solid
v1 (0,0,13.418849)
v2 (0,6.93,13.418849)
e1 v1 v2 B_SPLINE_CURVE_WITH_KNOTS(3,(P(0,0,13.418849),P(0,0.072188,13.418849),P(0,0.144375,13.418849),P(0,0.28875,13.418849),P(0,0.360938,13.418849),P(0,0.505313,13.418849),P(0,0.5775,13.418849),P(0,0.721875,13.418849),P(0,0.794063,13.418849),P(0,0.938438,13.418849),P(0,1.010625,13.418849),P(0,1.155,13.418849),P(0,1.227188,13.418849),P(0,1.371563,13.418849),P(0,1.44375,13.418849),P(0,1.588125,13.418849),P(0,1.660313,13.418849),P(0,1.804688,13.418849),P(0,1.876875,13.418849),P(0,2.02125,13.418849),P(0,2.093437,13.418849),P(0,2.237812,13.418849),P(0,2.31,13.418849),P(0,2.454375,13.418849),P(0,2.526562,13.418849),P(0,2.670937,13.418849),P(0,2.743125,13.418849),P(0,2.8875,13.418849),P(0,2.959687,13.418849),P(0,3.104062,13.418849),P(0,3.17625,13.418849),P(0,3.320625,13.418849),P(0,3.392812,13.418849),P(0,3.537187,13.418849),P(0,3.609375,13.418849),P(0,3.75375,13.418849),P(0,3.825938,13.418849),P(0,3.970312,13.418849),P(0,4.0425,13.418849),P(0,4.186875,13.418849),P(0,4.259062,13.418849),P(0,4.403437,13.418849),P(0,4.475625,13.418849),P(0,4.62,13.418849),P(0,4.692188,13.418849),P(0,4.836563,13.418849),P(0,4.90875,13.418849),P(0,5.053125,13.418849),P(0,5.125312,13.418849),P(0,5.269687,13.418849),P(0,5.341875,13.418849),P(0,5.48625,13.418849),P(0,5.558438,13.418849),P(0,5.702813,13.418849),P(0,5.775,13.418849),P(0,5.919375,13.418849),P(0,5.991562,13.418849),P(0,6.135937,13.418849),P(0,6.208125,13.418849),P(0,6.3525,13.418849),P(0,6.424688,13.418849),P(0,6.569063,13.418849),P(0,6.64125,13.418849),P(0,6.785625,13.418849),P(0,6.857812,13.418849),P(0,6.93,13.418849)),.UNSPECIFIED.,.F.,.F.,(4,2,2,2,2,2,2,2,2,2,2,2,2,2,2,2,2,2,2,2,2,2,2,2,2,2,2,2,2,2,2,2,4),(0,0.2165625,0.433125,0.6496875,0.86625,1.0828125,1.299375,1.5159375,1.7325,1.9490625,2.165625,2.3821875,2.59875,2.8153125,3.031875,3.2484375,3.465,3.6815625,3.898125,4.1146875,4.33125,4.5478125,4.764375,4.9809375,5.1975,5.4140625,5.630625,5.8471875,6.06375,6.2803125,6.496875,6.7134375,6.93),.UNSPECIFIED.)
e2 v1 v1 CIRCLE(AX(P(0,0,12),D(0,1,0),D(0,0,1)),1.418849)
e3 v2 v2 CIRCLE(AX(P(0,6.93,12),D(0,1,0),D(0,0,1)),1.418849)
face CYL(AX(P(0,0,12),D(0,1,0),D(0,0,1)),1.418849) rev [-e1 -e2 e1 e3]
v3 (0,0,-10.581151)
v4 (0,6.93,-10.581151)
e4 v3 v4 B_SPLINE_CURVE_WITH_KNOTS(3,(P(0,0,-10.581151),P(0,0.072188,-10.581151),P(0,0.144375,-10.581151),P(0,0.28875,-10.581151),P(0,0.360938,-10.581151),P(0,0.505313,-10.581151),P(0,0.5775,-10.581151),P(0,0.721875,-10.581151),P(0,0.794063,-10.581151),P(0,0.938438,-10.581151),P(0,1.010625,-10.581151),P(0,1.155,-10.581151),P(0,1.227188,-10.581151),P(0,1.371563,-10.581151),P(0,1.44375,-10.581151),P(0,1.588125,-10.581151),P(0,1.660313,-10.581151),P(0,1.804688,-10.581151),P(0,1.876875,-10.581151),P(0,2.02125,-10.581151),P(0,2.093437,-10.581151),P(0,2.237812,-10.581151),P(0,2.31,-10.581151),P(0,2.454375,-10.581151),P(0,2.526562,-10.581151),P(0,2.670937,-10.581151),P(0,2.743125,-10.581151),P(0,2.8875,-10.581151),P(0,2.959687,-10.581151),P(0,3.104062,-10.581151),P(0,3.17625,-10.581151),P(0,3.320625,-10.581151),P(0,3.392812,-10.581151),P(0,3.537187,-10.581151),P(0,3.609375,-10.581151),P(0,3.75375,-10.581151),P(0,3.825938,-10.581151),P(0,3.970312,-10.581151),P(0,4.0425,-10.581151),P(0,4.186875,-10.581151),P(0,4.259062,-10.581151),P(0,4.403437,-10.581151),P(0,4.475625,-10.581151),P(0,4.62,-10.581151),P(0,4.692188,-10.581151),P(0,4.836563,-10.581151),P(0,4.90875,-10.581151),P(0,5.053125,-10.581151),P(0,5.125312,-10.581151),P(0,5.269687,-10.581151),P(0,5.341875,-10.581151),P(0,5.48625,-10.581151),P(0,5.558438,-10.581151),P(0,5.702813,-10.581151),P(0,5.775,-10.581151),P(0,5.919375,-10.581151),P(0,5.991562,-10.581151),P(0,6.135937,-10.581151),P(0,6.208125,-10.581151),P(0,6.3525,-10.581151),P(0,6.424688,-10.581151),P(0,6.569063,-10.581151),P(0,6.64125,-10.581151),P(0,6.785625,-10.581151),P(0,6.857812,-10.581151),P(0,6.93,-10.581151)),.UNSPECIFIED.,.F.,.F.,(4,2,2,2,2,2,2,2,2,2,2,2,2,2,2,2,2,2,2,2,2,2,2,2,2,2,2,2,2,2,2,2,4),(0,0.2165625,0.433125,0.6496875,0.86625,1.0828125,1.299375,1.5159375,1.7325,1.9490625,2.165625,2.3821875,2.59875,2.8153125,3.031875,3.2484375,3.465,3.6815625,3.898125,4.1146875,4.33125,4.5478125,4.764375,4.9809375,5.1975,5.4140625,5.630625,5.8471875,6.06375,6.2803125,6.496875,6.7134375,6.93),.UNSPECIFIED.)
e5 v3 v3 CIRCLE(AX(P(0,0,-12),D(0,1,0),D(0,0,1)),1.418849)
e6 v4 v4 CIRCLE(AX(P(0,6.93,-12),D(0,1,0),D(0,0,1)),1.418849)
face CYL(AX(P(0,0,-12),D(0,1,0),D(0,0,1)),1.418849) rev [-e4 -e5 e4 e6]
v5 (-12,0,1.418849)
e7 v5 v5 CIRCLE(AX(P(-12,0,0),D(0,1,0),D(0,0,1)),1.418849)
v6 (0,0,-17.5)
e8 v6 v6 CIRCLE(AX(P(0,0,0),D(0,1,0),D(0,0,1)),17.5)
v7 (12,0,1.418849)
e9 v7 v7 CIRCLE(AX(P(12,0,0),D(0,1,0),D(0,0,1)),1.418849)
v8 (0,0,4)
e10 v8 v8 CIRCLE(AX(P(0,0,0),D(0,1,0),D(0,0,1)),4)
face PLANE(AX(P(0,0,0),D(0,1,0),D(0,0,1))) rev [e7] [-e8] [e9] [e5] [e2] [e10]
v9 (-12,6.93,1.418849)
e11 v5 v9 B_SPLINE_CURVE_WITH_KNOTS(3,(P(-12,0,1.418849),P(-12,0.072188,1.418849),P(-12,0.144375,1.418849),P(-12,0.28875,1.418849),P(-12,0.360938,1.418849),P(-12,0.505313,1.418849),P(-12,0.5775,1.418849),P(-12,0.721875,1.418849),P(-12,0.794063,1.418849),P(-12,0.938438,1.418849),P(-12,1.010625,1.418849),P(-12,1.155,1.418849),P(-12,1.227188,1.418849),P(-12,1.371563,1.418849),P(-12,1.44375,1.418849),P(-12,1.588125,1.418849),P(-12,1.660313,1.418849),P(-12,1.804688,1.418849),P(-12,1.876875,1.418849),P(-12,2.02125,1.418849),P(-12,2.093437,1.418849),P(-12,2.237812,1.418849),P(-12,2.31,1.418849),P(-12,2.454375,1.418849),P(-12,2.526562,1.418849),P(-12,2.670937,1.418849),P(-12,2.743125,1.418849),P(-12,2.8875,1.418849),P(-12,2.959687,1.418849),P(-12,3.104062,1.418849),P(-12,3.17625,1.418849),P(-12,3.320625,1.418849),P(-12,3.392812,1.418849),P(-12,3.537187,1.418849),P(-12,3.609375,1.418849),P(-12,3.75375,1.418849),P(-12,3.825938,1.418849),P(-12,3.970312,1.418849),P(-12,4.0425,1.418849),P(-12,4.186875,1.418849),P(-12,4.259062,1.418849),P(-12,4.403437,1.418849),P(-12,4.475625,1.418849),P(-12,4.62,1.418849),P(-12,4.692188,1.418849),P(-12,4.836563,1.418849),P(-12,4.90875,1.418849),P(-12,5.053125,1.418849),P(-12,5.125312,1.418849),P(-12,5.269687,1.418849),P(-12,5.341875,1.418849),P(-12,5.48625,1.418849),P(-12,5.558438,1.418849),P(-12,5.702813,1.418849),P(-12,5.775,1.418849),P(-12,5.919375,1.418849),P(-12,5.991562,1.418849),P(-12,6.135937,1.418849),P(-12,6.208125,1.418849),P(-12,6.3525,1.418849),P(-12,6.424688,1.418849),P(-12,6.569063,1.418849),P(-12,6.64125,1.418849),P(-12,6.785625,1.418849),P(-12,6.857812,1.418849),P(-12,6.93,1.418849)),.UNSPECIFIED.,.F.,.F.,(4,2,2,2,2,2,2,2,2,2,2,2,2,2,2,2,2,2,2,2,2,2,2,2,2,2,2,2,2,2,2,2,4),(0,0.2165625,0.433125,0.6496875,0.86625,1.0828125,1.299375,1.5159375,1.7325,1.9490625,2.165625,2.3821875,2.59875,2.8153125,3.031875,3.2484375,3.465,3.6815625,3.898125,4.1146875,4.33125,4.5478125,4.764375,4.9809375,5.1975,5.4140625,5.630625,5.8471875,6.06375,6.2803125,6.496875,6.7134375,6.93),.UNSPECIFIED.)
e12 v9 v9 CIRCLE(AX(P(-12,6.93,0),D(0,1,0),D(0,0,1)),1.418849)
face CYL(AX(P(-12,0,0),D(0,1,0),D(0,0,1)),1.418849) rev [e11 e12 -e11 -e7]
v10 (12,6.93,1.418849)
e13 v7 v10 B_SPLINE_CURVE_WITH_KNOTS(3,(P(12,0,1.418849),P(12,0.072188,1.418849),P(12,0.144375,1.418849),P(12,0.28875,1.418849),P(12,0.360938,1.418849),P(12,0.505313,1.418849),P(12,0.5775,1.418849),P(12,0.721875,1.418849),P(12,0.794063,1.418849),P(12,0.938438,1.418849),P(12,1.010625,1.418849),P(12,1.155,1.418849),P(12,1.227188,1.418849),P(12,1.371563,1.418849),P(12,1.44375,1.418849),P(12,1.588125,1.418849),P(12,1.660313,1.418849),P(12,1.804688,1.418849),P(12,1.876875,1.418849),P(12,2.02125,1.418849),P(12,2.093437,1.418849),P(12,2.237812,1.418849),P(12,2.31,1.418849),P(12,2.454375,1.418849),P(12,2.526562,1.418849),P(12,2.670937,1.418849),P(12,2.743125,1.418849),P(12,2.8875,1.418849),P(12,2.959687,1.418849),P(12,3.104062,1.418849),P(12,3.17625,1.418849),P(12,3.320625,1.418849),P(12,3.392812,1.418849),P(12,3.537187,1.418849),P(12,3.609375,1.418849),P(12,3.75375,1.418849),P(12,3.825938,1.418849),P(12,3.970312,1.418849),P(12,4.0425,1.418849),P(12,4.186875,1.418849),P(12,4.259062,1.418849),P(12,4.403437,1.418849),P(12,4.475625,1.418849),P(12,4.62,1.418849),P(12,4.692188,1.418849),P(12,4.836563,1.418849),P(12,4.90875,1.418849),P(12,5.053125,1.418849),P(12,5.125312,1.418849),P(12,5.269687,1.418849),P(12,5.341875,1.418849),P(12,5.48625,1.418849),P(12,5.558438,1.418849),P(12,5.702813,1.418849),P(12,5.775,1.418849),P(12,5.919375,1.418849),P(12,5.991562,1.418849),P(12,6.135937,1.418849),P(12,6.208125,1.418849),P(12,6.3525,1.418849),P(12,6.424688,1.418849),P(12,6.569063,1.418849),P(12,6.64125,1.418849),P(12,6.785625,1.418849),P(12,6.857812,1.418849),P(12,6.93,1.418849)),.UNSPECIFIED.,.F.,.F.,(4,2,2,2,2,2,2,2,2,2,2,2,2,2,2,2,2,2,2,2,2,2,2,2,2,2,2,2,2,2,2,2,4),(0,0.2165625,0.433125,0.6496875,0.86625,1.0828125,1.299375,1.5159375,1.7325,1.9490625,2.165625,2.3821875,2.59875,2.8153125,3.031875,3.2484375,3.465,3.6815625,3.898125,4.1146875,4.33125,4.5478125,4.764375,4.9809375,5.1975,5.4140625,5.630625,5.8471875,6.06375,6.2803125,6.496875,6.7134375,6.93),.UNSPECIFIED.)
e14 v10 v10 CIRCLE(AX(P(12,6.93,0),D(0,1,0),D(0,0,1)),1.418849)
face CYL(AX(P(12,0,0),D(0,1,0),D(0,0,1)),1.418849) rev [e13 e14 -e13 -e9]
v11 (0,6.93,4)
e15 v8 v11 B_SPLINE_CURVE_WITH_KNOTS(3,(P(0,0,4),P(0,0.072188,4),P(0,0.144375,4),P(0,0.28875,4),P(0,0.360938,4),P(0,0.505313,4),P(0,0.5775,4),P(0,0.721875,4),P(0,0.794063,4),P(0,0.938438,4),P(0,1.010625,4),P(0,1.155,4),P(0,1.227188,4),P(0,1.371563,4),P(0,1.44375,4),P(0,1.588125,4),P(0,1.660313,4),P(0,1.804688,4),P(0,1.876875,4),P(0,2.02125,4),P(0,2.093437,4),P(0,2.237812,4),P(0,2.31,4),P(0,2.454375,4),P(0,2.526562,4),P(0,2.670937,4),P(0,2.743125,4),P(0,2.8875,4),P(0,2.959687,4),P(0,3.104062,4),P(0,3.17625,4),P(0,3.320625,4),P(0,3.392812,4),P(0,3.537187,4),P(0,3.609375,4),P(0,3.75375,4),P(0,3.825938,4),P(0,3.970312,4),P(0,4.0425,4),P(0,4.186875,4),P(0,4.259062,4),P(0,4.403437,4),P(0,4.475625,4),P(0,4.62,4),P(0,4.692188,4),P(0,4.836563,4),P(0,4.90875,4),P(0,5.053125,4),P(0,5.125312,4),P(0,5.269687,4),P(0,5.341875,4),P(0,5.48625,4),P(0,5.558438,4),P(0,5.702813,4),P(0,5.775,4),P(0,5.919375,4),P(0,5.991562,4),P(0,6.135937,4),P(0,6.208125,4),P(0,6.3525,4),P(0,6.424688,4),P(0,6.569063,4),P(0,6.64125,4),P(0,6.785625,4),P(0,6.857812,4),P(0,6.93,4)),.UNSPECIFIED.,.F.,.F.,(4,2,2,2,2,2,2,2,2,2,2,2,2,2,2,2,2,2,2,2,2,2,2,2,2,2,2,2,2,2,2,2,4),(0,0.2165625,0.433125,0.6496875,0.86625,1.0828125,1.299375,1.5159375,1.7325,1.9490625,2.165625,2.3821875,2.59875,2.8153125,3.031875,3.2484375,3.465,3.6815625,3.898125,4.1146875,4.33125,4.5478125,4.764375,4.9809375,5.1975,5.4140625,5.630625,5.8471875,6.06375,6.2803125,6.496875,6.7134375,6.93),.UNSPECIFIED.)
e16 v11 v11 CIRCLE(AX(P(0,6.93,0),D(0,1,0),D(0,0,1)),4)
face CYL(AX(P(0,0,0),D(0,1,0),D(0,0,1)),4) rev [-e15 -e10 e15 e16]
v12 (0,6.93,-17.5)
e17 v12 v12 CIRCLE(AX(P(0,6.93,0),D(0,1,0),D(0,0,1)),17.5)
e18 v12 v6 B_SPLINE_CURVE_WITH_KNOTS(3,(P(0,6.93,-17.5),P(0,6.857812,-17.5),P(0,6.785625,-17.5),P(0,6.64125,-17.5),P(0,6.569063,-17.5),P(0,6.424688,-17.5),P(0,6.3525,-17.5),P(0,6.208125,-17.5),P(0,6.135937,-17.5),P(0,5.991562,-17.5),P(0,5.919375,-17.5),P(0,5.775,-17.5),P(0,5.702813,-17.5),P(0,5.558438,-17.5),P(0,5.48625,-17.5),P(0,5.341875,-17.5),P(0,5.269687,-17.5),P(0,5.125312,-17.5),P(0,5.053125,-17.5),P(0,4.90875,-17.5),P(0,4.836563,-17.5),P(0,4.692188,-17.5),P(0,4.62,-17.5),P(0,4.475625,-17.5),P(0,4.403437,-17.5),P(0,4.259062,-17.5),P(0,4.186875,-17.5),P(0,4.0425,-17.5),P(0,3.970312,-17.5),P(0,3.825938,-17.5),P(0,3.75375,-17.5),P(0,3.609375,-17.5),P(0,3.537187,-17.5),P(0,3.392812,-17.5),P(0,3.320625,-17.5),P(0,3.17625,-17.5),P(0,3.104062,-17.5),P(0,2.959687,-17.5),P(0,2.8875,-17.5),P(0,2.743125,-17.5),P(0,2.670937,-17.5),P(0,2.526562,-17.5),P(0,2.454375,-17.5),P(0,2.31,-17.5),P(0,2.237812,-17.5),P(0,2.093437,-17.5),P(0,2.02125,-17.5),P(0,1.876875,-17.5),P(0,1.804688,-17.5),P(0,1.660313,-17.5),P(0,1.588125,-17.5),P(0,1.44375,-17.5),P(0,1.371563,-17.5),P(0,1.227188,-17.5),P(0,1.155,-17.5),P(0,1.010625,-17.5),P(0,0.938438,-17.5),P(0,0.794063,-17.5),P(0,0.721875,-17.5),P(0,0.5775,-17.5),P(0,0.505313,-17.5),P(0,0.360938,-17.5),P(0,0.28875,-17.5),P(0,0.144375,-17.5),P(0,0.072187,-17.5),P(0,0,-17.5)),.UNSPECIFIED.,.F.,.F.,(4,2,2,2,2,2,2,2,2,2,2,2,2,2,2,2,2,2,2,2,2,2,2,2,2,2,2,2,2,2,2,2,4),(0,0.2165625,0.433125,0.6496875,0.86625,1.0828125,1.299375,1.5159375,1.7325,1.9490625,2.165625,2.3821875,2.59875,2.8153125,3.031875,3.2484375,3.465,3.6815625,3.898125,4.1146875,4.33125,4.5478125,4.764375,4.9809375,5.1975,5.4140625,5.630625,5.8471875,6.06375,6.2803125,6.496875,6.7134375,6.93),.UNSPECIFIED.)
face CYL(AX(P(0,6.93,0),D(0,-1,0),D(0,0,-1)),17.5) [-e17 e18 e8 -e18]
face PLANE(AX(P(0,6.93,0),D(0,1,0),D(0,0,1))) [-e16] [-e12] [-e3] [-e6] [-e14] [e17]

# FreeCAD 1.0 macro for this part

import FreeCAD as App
import Part
import Sketcher
from FreeCAD import Vector
Q = App.Units.Quantity

doc = App.newDocument("Part")
body = doc.addObject("PartDesign::Body", "Body")

# Sketch on XZ plane
sketch1 = body.newObject("Sketcher::SketchObject", "Sketch")
sketch1.AttachmentSupport = (doc.getObject("XZ_Plane"), [""])
sketch1.MapMode = "FlatFace"
sketch1.addGeometry(Part.Circle(Vector(0, 0, 0), Vector(0, 0, 1), 18), False)
sketch1.addConstraint([
    Sketcher.Constraint("Coincident", 0, 3, -1, 1),
    Sketcher.Constraint("Diameter", 0, Q("35 mm")),
])
pad1 = body.newObject("PartDesign::Pad", "Pad")
pad1.Profile = sketch1
pad1.Length = 6.93
pad1.Reversed = True

# Sketch on XZ plane
sketch2 = body.newObject("Sketcher::SketchObject", "Sketch001")
sketch2.AttachmentSupport = (doc.getObject("XZ_Plane"), [""])
sketch2.MapMode = "FlatFace"
sketch2.AttachmentOffset = App.Placement(Vector(0, 0, -6.93), App.Rotation())
sketch2.addGeometry([
    Part.Circle(Vector(0, -12, 0), Vector(0, 0, 1), 1.4),
    Part.Circle(Vector(12, 0, 0), Vector(0, 0, 1), 1.4),
    Part.Circle(Vector(0, 12, 0), Vector(0, 0, 1), 1.4),
    Part.Circle(Vector(-12, 0, 0), Vector(0, 0, 1), 1.4),
], False)
sketch2.addConstraint([
    Sketcher.Constraint("Equal", 0, 1),
    Sketcher.Constraint("Equal", 1, 2),
    Sketcher.Constraint("Equal", 2, 3),
    Sketcher.Constraint("Symmetric", 0, 3, 2, 3, -1, 1),
    Sketcher.Constraint("Symmetric", 1, 3, 3, 3, -1, 1),
    Sketcher.Constraint("PointOnObject", 0, 3, -2),
    Sketcher.Constraint("PointOnObject", 1, 3, -1),
    Sketcher.Constraint("DistanceY", 0, 3, -1, 1, Q("12 mm")),
    Sketcher.Constraint("DistanceX", -1, 1, 1, 3, Q("12 mm")),
    Sketcher.Constraint("Diameter", 0, Q("2.837697 mm")),
])
pocket1 = body.newObject("PartDesign::Pocket", "Pocket")
pocket1.Profile = sketch2
pocket1.Type = "ThroughAll"
pocket1.Reversed = True

# Sketch on XZ plane
sketch3 = body.newObject("Sketcher::SketchObject", "Sketch002")
sketch3.AttachmentSupport = (doc.getObject("XZ_Plane"), [""])
sketch3.MapMode = "FlatFace"
sketch3.AttachmentOffset = App.Placement(Vector(0, 0, -6.93), App.Rotation())
sketch3.addGeometry(Part.Circle(Vector(0, 0, 0), Vector(0, 0, 1), 4), False)
sketch3.addConstraint([
    Sketcher.Constraint("Coincident", 0, 3, -1, 1),
    Sketcher.Constraint("Diameter", 0, Q("8 mm")),
])
pocket2 = body.newObject("PartDesign::Pocket", "Pocket001")
pocket2.Profile = sketch3
pocket2.Length = 6.93
pocket2.Reversed = True

doc.recompute()
